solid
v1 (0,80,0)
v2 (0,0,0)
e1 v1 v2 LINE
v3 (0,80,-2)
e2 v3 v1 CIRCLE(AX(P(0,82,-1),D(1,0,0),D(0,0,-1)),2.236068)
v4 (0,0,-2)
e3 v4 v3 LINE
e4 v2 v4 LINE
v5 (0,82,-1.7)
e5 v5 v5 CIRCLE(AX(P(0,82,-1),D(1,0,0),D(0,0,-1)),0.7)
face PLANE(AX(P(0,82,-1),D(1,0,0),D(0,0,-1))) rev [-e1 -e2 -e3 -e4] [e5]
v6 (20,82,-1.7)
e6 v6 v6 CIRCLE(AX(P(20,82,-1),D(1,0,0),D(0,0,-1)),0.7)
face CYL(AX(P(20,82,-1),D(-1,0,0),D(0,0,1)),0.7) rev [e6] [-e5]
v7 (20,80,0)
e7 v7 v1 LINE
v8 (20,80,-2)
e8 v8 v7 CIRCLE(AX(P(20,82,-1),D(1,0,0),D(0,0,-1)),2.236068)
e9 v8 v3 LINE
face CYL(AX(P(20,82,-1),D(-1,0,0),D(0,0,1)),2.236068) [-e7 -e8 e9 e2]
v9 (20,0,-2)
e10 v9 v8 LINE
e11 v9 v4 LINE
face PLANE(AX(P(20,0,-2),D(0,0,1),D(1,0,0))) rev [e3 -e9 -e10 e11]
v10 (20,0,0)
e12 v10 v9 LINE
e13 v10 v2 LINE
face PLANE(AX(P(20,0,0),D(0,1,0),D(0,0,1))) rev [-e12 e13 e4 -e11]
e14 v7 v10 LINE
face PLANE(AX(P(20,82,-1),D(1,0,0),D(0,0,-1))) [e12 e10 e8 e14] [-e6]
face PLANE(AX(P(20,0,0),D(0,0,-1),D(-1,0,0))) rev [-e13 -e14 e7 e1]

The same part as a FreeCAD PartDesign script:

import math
import FreeCAD as App
import Part
import Sketcher

V = App.Vector

doc = App.newDocument("Part")
body = doc.addObject("PartDesign::Body", "Body")

# Sketch on YZ plane
sketch1 = body.newObject("Sketcher::SketchObject", "Sketch")
sketch1.AttachmentSupport = (doc.getObject("YZ_Plane"), [""])
sketch1.MapMode = "FlatFace"
sketch1.addGeometry([
    Part.LineSegment(V(0, 0, 0), V(0, -2, 0)),  # 0
    Part.LineSegment(V(0, -2, 0), V(80, -2, 0)),  # 1
    Part.ArcOfCircle(Part.Circle(V(82, -1, 0), V(0, 0, 1), 2.2), math.radians(-153), math.radians(153)),  # 2
    Part.LineSegment(V(80, 0, 0), V(0, 0, 0)),  # 3
    Part.Circle(V(82, -1, 0), V(0, 0, 1), 0.7),  # 4
], False)
sketch1.addConstraint([
    Sketcher.Constraint("Coincident", 0, 2, 1, 1),
    Sketcher.Constraint("Coincident", 1, 2, 2, 1),
    Sketcher.Constraint("Coincident", 2, 2, 3, 1),
    Sketcher.Constraint("Coincident", 3, 2, 0, 1),
    Sketcher.Constraint("Vertical", 0),
    Sketcher.Constraint("Horizontal", 1),
    Sketcher.Constraint("Horizontal", 3),
    Sketcher.Constraint("Coincident", 3, 2, -1, 1),
    Sketcher.Constraint("Coincident", 4, 3, 2, 3),
    Sketcher.Constraint("Vertical", 1, 2, 2, 2),
    Sketcher.Constraint("Diameter", 4, 1.4),
    Sketcher.Constraint("DistanceX", 1, 1, 1, 2, 80.0),
    Sketcher.Constraint("DistanceY", 0, 2, 0, 1, 2.0),
    Sketcher.Constraint("DistanceX", -1, 1, 2, 3, 82.0),
])
pad1 = body.newObject("PartDesign::Pad", "Pad")
pad1.Profile = sketch1
pad1.Length = 20

doc.recompute()
